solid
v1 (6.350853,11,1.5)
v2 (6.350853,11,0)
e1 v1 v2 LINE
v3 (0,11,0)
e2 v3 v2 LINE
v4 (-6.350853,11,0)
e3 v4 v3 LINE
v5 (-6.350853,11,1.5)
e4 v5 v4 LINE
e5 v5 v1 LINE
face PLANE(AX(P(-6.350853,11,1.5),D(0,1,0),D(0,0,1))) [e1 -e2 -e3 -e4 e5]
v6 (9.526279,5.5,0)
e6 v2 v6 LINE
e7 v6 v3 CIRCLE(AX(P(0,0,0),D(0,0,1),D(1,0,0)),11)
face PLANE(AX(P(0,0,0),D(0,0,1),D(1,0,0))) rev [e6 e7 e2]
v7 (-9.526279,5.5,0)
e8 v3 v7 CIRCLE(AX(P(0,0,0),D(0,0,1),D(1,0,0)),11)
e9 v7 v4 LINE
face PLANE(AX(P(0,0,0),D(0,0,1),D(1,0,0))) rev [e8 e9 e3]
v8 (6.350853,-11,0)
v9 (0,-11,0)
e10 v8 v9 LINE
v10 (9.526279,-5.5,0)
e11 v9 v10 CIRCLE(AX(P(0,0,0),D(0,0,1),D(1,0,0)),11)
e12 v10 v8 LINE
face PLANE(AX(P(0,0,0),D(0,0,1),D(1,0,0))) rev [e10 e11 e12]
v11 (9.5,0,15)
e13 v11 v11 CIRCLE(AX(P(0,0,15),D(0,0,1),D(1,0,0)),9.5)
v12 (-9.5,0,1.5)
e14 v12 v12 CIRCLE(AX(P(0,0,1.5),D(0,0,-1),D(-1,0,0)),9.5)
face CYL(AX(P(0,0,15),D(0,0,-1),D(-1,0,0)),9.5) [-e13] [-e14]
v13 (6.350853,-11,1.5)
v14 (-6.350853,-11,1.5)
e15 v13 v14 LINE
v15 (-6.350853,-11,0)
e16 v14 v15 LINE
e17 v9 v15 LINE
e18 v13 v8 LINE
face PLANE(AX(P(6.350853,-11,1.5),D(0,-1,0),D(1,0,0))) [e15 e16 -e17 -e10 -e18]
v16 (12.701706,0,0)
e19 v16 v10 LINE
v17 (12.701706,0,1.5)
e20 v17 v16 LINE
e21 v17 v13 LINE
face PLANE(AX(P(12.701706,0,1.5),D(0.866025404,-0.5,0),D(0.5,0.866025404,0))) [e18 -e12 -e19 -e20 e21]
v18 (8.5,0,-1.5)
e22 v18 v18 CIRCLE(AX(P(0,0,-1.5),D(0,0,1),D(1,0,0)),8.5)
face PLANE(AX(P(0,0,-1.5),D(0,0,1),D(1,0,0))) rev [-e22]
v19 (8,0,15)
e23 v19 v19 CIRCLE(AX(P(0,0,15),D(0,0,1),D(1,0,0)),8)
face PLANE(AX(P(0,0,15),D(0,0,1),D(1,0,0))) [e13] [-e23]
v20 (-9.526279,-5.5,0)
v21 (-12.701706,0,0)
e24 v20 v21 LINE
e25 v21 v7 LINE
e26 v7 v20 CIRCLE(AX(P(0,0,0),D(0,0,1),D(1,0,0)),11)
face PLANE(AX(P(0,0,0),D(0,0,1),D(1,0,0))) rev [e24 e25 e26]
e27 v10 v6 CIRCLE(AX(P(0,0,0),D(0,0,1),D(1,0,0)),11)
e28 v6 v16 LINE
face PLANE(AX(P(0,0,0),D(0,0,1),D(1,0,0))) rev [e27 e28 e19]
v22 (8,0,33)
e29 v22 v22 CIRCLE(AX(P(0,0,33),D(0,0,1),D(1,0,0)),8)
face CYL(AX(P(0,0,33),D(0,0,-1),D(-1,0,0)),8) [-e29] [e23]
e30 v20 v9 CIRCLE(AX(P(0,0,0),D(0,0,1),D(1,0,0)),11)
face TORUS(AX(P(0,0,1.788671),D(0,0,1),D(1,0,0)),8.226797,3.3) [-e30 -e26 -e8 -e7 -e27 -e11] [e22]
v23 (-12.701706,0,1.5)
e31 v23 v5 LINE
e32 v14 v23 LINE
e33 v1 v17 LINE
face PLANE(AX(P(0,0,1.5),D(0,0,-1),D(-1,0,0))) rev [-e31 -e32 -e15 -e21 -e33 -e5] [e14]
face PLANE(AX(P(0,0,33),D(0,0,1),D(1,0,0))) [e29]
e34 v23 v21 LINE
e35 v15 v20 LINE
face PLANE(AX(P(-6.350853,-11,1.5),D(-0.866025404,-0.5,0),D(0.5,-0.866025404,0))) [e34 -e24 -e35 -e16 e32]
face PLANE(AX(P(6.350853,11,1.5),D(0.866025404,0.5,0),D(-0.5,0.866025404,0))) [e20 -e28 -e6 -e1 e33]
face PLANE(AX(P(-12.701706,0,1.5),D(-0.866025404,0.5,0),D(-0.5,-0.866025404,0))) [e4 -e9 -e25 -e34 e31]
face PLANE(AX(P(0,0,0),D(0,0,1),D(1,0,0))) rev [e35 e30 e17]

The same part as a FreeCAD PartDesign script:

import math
import FreeCAD as App
import Part
import Sketcher
Q = App.Units.Quantity


def add_polygon(sketch, points):
    """Adds a closed chain of lines whose ends are joined by coincident constraints."""
    first, n = sketch.GeometryCount, len(points)
    for a, b in zip(points, points[1:] + points[:1]):
        sketch.addGeometry(Part.LineSegment(App.Vector(*a, 0), App.Vector(*b, 0)), False)
    for i in range(n):
        sketch.addConstraint(Sketcher.Constraint("Coincident", first + i, 2, first + (i + 1) % n, 1))

doc = App.newDocument("Part")
body = doc.addObject("PartDesign::Body", "Body")

# Sketch on XY plane
sketch1 = body.newObject("Sketcher::SketchObject", "Sketch")
sketch1.AttachmentSupport = (doc.getObject("XY_Plane"), [""])
sketch1.MapMode = "FlatFace"
sketch1.addGeometry(Part.Circle(App.Vector(0, 0, 0), App.Vector(0, 0, 1), 10), False)
sketch1.addConstraint([
    Sketcher.Constraint("Coincident", 0, 3, -1, 1),
    Sketcher.Constraint("Diameter", 0, Q("19 mm")),
])
pad1 = body.newObject("PartDesign::Pad", "Pad")
pad1.Profile = sketch1
pad1.Length = 15

# Sketch on XY plane
sketch2 = body.newObject("Sketcher::SketchObject", "Sketch001")
sketch2.AttachmentSupport = (doc.getObject("XY_Plane"), [""])
sketch2.MapMode = "FlatFace"
add_polygon(sketch2, [(-6, 11), (6, 11), (13, 0), (6, -11), (-6, -11), (-13, 0)])  # lines 0-5
sketch2.addConstraint([
    Sketcher.Constraint("Horizontal", 0),
    Sketcher.Constraint("Horizontal", 3),
    Sketcher.Constraint("Symmetric", 0, 2, 3, 2, -1, 1),
    Sketcher.Constraint("Symmetric", 1, 2, 4, 2, -1, 1),
    Sketcher.Constraint("PointOnObject", 1, 2, -1),
    Sketcher.Constraint("Parallel", 2, 5),
    Sketcher.Constraint("Vertical", 0, 2, 2, 2),
    Sketcher.Constraint("Angle", 1, Q("-60 deg")),
    Sketcher.Constraint("DistanceY", -1, 1, 0, 2, Q("11 mm")),
    Sketcher.Constraint("DistanceX", 0, 1, 0, 2, Q("12.701706 mm")),
])
pad2 = body.newObject("PartDesign::Pad", "Pad001")
pad2.Profile = sketch2
pad2.Length = 1.5

# Sketch on XZ plane
sketch3 = body.newObject("Sketcher::SketchObject", "Sketch002")
sketch3.AttachmentSupport = (doc.getObject("XZ_Plane"), [""])
sketch3.MapMode = "FlatFace"
sketch3.addGeometry([
    Part.LineSegment(App.Vector(0, 0, 0), App.Vector(0, -1.5, 0)),
    Part.LineSegment(App.Vector(0, -1.5, 0), App.Vector(-8.5, -1.5, 0)),
    Part.ArcOfCircle(Part.Circle(App.Vector(-8.2, 1.8, 0), App.Vector(0, 0, 1), 3.3), math.radians(-147), math.radians(-95)),
    Part.LineSegment(App.Vector(-11, 0, 0), App.Vector(0, 0, 0)),
], False)
sketch3.addConstraint([
    Sketcher.Constraint("Coincident", 0, 2, 1, 1),
    Sketcher.Constraint("Coincident", 1, 2, 2, 2),
    Sketcher.Constraint("Coincident", 2, 1, 3, 1),
    Sketcher.Constraint("Coincident", 3, 2, 0, 1),
    Sketcher.Constraint("Vertical", 0),
    Sketcher.Constraint("Horizontal", 1),
    Sketcher.Constraint("Horizontal", 3),
    Sketcher.Constraint("Coincident", 3, 2, -1, 1),
    Sketcher.Constraint("Radius", 2, Q("3.3 mm")),
    Sketcher.Constraint("DistanceX", 3, 1, 3, 2, Q("11 mm")),
    Sketcher.Constraint("DistanceX", 1, 2, 1, 1, Q("8.5 mm")),
    Sketcher.Constraint("DistanceY", 0, 2, 0, 1, Q("1.5 mm")),
])
revolution = body.newObject("PartDesign::Revolution", "Revolution")
revolution.Profile = sketch3
revolution.ReferenceAxis = (sketch3, ["V_Axis"])
revolution.Angle = 360

# Sketch on XY plane
sketch4 = body.newObject("Sketcher::SketchObject", "Sketch003")
sketch4.AttachmentSupport = (doc.getObject("XY_Plane"), [""])
sketch4.MapMode = "FlatFace"
sketch4.AttachmentOffset = App.Placement(App.Vector(0, 0, 15), App.Rotation())
sketch4.addGeometry(Part.Circle(App.Vector(0, 0, 0), App.Vector(0, 0, 1), 8), False)
sketch4.addConstraint([
    Sketcher.Constraint("Coincident", 0, 3, -1, 1),
    Sketcher.Constraint("Diameter", 0, Q("16 mm")),
])
pad3 = body.newObject("PartDesign::Pad", "Pad002")
pad3.Profile = sketch4
pad3.Length = 18

doc.recompute()
